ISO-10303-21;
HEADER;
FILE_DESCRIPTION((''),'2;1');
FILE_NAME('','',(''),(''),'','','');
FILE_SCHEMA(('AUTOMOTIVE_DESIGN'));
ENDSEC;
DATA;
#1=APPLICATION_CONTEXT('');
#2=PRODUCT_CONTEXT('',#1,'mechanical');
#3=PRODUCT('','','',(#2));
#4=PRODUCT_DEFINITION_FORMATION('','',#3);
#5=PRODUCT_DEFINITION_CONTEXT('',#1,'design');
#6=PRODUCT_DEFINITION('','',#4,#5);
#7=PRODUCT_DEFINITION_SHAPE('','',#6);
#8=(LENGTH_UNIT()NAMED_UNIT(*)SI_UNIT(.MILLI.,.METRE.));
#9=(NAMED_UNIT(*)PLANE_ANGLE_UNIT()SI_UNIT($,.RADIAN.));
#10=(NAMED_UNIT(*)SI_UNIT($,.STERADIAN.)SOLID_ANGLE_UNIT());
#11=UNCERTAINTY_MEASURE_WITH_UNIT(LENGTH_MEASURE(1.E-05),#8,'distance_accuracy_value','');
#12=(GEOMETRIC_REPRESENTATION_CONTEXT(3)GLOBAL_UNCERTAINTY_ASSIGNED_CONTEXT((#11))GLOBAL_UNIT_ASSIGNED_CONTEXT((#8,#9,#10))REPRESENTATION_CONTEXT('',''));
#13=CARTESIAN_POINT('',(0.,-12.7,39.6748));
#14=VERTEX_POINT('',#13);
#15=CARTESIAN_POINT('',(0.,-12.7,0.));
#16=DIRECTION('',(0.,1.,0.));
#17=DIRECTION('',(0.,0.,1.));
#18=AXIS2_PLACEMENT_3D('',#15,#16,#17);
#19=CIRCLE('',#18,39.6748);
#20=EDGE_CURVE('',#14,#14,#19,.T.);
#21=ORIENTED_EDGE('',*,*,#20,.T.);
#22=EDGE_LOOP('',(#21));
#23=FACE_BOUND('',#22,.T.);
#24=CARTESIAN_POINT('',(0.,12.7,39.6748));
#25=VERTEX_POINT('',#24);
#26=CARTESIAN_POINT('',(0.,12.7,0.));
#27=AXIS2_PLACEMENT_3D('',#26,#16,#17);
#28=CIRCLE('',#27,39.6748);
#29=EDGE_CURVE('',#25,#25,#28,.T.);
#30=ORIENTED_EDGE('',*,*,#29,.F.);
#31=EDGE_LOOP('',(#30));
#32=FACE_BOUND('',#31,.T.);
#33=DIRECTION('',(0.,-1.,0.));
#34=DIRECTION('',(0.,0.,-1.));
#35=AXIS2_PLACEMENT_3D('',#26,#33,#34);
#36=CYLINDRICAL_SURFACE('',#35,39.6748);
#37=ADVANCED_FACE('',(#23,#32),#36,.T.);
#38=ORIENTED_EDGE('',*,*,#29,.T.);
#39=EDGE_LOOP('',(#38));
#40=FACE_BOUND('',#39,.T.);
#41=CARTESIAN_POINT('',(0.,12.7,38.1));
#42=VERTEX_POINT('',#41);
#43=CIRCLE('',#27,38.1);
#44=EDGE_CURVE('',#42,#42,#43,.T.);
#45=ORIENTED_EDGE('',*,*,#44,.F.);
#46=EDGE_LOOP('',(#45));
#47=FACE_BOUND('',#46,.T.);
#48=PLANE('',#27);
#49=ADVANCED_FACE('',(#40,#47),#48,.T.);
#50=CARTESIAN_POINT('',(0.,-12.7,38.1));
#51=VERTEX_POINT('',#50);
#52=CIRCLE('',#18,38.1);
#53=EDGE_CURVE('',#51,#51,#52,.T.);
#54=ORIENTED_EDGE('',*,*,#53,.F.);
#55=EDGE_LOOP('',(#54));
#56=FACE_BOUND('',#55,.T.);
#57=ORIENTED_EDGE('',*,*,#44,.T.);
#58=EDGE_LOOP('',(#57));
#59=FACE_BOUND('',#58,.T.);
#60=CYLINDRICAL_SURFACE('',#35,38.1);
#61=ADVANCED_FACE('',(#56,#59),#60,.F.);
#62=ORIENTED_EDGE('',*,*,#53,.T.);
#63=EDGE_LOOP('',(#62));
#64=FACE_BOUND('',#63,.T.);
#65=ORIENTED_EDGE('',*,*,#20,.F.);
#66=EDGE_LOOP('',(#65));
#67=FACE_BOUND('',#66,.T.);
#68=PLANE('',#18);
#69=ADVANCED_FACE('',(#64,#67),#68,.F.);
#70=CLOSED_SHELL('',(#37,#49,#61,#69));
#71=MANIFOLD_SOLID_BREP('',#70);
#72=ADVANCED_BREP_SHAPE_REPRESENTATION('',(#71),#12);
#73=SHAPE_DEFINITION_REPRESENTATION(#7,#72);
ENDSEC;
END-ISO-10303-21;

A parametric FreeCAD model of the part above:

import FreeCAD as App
import Part
import Sketcher

V = App.Vector
Q = App.Units.Quantity

doc = App.newDocument("Part")
body = doc.addObject("PartDesign::Body", "Body")

sketch1 = body.newObject("Sketcher::SketchObject", "Sketch")
sketch1.AttachmentSupport = (doc.getObject("XZ_Plane"), [""])
sketch1.MapMode = "FlatFace"
sketch1.addGeometry([
    Part.Circle(V(0, 0, 0), V(0, 0, 1), 39.6748),
    Part.Circle(V(0, 0, 0), V(0, 0, 1), 38.1),
], False)
sketch1.addConstraint([
    Sketcher.Constraint("Coincident", 0, 3, -1, 1),
    Sketcher.Constraint("Coincident", 1, 3, -1, 1),
    Sketcher.Constraint("Diameter", 1, Q("3 in")),
    Sketcher.Constraint("Diameter", 0, Q("3.124 in")),
])
pad1 = body.newObject("PartDesign::Pad", "Pad")
pad1.Profile = sketch1
pad1.Length = Q("1 in")
pad1.Midplane = True

doc.recompute()
